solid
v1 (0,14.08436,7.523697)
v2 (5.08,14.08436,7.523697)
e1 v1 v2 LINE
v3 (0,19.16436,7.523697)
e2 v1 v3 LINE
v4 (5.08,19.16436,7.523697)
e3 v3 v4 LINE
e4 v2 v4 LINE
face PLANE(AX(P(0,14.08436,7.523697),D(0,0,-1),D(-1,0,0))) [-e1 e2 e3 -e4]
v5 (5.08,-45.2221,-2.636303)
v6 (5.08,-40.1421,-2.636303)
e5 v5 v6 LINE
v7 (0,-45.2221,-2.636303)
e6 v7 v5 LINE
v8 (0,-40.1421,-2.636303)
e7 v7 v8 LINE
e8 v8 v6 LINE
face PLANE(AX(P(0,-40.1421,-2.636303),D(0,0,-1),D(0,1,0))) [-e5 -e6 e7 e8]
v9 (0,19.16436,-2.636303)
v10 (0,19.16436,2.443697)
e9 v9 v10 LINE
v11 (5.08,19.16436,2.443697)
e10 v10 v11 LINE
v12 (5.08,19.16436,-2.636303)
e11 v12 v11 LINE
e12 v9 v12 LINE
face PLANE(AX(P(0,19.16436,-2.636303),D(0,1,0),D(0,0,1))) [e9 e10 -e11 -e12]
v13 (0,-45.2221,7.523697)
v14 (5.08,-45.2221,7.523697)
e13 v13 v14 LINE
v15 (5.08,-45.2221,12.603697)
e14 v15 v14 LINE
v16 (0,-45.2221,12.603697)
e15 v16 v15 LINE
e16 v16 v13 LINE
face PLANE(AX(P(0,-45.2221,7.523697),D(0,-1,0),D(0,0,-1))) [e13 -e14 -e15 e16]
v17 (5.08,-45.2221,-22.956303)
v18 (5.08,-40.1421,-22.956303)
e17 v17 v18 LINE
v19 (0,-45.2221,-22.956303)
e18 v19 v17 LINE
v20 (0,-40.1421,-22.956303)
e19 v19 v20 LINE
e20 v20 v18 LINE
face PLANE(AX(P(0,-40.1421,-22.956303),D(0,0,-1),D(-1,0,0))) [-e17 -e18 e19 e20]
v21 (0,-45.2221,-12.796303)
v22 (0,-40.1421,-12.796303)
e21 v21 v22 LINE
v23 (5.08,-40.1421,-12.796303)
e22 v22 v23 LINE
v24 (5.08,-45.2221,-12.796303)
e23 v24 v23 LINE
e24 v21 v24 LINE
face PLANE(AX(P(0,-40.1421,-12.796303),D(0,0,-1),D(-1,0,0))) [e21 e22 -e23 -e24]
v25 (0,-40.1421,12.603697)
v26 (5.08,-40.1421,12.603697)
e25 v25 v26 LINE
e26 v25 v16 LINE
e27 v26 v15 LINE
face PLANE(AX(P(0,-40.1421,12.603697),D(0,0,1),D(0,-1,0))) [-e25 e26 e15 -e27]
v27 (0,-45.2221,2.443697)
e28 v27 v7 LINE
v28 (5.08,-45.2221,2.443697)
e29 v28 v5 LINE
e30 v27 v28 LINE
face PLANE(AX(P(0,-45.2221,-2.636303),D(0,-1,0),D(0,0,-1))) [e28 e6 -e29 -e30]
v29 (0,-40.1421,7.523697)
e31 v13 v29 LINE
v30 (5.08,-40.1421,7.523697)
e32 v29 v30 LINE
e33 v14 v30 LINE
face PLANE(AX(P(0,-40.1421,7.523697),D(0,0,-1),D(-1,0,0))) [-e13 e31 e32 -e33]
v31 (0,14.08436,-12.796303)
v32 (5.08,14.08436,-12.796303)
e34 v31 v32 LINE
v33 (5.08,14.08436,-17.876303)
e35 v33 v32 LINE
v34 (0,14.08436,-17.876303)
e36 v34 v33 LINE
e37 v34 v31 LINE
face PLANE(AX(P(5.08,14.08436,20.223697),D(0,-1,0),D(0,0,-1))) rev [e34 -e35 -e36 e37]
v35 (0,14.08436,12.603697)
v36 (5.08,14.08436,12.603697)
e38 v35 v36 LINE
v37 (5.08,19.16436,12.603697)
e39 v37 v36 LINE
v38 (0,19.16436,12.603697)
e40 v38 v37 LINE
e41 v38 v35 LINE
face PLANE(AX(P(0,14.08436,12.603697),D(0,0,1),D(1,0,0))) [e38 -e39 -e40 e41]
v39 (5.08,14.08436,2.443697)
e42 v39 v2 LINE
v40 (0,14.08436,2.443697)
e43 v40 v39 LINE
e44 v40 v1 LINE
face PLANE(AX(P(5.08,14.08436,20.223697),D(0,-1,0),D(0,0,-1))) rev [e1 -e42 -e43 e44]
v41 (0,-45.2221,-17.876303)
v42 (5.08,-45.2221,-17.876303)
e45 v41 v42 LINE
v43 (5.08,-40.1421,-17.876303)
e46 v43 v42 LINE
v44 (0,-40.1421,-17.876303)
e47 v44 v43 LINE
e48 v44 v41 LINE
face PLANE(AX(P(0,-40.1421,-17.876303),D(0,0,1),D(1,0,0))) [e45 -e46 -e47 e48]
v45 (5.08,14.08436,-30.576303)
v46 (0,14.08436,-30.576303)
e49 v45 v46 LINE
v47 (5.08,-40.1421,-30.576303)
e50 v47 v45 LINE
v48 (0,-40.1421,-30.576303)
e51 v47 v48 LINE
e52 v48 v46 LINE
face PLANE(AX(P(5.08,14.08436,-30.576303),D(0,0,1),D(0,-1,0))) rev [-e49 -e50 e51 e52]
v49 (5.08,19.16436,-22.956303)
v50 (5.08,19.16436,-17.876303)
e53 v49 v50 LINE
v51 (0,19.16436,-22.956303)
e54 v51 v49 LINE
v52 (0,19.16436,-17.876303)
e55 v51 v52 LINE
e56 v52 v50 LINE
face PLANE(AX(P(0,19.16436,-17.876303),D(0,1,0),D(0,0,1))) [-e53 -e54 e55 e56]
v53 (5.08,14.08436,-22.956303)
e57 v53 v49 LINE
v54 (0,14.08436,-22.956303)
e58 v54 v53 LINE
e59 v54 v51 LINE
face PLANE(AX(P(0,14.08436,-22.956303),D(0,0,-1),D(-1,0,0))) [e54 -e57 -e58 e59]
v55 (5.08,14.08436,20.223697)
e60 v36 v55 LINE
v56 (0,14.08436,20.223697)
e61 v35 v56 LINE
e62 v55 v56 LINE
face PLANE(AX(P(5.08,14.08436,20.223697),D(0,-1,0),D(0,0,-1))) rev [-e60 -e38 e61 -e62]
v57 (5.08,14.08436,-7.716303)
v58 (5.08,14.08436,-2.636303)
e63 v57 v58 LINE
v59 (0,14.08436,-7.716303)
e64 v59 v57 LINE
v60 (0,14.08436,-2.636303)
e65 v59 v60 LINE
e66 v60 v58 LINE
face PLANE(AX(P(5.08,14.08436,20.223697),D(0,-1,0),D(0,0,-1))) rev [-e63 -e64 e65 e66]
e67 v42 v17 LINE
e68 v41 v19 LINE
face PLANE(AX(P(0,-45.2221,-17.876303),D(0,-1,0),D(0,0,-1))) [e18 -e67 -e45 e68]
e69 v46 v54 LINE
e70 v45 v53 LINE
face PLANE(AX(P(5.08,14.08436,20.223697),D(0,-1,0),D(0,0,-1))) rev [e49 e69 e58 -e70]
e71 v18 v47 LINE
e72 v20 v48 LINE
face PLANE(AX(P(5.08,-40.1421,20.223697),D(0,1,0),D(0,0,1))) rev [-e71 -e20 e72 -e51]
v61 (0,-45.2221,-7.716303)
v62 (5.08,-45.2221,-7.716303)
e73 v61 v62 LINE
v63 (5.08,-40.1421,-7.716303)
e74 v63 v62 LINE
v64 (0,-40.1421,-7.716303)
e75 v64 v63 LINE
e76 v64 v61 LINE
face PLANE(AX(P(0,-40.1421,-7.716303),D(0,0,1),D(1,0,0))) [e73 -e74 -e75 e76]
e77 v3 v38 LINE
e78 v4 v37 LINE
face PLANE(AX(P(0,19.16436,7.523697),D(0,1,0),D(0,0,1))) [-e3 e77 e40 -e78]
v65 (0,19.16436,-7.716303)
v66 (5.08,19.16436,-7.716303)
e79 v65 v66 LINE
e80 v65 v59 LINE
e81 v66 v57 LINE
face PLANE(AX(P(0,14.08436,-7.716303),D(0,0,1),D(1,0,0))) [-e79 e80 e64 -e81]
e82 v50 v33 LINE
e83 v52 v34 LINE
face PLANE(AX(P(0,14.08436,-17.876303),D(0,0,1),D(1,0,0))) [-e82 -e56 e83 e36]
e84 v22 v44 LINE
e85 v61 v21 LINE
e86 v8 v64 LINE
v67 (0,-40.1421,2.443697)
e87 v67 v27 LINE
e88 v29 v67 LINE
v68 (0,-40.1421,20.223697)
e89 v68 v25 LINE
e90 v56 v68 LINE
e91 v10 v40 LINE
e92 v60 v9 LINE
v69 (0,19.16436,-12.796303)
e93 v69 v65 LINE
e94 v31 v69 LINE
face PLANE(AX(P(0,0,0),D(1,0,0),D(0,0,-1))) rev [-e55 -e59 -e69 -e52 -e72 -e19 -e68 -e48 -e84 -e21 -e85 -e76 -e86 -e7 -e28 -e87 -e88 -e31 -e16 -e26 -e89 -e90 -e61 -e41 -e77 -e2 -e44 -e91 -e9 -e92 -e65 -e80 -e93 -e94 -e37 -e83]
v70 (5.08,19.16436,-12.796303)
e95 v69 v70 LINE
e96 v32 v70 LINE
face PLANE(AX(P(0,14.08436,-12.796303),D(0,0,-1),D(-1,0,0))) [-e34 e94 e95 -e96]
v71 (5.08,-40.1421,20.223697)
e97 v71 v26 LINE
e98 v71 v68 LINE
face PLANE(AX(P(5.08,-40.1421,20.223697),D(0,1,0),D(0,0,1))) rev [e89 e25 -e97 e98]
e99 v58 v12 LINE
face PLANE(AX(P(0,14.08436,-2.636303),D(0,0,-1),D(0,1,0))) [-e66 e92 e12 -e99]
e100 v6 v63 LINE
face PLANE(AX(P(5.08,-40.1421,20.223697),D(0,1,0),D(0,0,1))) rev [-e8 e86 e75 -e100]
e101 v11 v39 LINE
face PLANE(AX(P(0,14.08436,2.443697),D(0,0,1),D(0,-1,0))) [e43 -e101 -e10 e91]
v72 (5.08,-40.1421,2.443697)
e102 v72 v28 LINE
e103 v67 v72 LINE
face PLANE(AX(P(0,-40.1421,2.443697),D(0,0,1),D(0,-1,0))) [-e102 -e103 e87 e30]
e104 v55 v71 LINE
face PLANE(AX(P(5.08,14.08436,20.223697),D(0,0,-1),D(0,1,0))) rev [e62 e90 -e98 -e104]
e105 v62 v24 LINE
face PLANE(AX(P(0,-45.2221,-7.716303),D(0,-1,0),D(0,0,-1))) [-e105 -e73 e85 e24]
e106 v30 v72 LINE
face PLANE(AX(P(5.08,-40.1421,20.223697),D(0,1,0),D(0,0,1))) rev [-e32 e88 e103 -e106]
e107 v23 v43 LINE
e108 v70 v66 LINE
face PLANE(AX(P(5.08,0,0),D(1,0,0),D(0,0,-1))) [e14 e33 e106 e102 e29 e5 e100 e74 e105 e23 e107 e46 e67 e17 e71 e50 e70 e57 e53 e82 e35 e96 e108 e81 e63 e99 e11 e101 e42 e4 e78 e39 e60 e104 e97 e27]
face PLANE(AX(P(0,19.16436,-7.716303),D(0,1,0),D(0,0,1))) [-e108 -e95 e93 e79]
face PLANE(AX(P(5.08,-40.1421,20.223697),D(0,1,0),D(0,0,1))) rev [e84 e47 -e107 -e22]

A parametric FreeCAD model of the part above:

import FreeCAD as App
import Part
import Sketcher
Q = App.Units.Quantity


def add_polygon(sketch, points):
    """Adds a closed chain of lines whose ends are joined by coincident constraints."""
    first, n = sketch.GeometryCount, len(points)
    for a, b in zip(points, points[1:] + points[:1]):
        sketch.addGeometry(Part.LineSegment(App.Vector(*a, 0), App.Vector(*b, 0)), False)
    for i in range(n):
        sketch.addConstraint(Sketcher.Constraint("Coincident", first + i, 2, first + (i + 1) % n, 1))

doc = App.newDocument("Part")
body = doc.addObject("PartDesign::Body", "Body")

sketch1 = body.newObject("Sketcher::SketchObject", "Sketch")
sketch1.AttachmentSupport = (doc.getObject("YZ_Plane"), [""])
sketch1.MapMode = "FlatFace"
add_polygon(sketch1, [(14.08436, 20.223697), (-40.1421, 20.223697), (-40.1421, -30.576303), (14.08436, -30.576303)])
sketch1.addConstraint(Sketcher.Constraint("Horizontal", 0))
sketch1.addConstraint(Sketcher.Constraint("Vertical", 1))
sketch1.addConstraint(Sketcher.Constraint("Horizontal", 2))
sketch1.addConstraint(Sketcher.Constraint("Vertical", 3))
sketch1.addConstraint(Sketcher.Constraint("DistanceY", 1, 2, 1, 1, Q("2 in")))
sketch1.addConstraint(Sketcher.Constraint("DistanceX", 0, 2, 0, 1, Q("2.1349 in")))
sketch1.addConstraint(Sketcher.Constraint("DistanceX", 0, 2, -1, 1, 40.1421))
sketch1.addConstraint(Sketcher.Constraint("DistanceY", -1, 1, 0, 2, 20.223697))
pad1 = body.newObject("PartDesign::Pad", "Pad")
pad1.Profile = sketch1
pad1.Length = Q("0.2 in")

sketch2 = body.newObject("Sketcher::SketchObject", "Sketch001")
sketch2.AttachmentSupport = (doc.getObject("YZ_Plane"), [""])
sketch2.MapMode = "FlatFace"
sketch2.AttachmentOffset = App.Placement(App.Vector(0, 0, 0.2 * 25.4), App.Rotation())
add_polygon(sketch2, [(19.16436, 12.603697), (14.08436, 12.603697), (14.08436, 7.523697), (19.16436, 7.523697)])
add_polygon(sketch2, [(19.16436, -7.716303), (14.08436, -7.716303), (14.08436, -12.796303), (19.16436, -12.796303)])
add_polygon(sketch2, [(19.16436, -17.876303), (14.08436, -17.876303), (14.08436, -22.956303), (19.16436, -22.956303)])
add_polygon(sketch2, [(19.16436, 2.443697), (14.08436, 2.443697), (14.08436, -2.636303), (19.16436, -2.636303)])
add_polygon(sketch2, [(-40.1421, 2.443697), (-45.2221, 2.443697), (-45.2221, -2.636303), (-40.1421, -2.636303)])
add_polygon(sketch2, [(-40.1421, 12.603697), (-45.2221, 12.603697), (-45.2221, 7.523697), (-40.1421, 7.523697)])
add_polygon(sketch2, [(-40.1421, -17.876303), (-45.2221, -17.876303), (-45.2221, -22.956303), (-40.1421, -22.956303)])
add_polygon(sketch2, [(-40.1421, -7.716303), (-45.2221, -7.716303), (-45.2221, -12.796303), (-40.1421, -12.796303)])
sketch2.addConstraint(Sketcher.Constraint("Horizontal", 0))
sketch2.addConstraint(Sketcher.Constraint("Vertical", 1))
sketch2.addConstraint(Sketcher.Constraint("Horizontal", 2))
sketch2.addConstraint(Sketcher.Constraint("Vertical", 3))
sketch2.addConstraint(Sketcher.Constraint("Horizontal", 4))
sketch2.addConstraint(Sketcher.Constraint("Vertical", 5))
sketch2.addConstraint(Sketcher.Constraint("Horizontal", 6))
sketch2.addConstraint(Sketcher.Constraint("Vertical", 7))
sketch2.addConstraint(Sketcher.Constraint("Horizontal", 8))
sketch2.addConstraint(Sketcher.Constraint("Vertical", 9))
sketch2.addConstraint(Sketcher.Constraint("Horizontal", 10))
sketch2.addConstraint(Sketcher.Constraint("Vertical", 11))
sketch2.addConstraint(Sketcher.Constraint("Horizontal", 12))
sketch2.addConstraint(Sketcher.Constraint("Vertical", 13))
sketch2.addConstraint(Sketcher.Constraint("Horizontal", 14))
sketch2.addConstraint(Sketcher.Constraint("Vertical", 15))
sketch2.addConstraint(Sketcher.Constraint("Horizontal", 16))
sketch2.addConstraint(Sketcher.Constraint("Vertical", 17))
sketch2.addConstraint(Sketcher.Constraint("Horizontal", 18))
sketch2.addConstraint(Sketcher.Constraint("Vertical", 19))
sketch2.addConstraint(Sketcher.Constraint("Horizontal", 20))
sketch2.addConstraint(Sketcher.Constraint("Vertical", 21))
sketch2.addConstraint(Sketcher.Constraint("Horizontal", 22))
sketch2.addConstraint(Sketcher.Constraint("Vertical", 23))
sketch2.addConstraint(Sketcher.Constraint("Horizontal", 24))
sketch2.addConstraint(Sketcher.Constraint("Vertical", 25))
sketch2.addConstraint(Sketcher.Constraint("Horizontal", 26))
sketch2.addConstraint(Sketcher.Constraint("Vertical", 27))
sketch2.addConstraint(Sketcher.Constraint("Horizontal", 28))
sketch2.addConstraint(Sketcher.Constraint("Vertical", 29))
sketch2.addConstraint(Sketcher.Constraint("Horizontal", 30))
sketch2.addConstraint(Sketcher.Constraint("Vertical", 31))
sketch2.addConstraint(Sketcher.Constraint("Horizontal", 15, 2, 16, 2))
sketch2.addConstraint(Sketcher.Constraint("Horizontal", 14, 2, 17, 2))
sketch2.addConstraint(Sketcher.Constraint("Horizontal", 3, 2, 20, 2))
sketch2.addConstraint(Sketcher.Constraint("Horizontal", 2, 2, 21, 2))
sketch2.addConstraint(Sketcher.Constraint("Horizontal", 11, 2, 24, 2))
sketch2.addConstraint(Sketcher.Constraint("Horizontal", 10, 2, 25, 2))
sketch2.addConstraint(Sketcher.Constraint("Horizontal", 7, 2, 28, 2))
sketch2.addConstraint(Sketcher.Constraint("Horizontal", 6, 2, 29, 2))
sketch2.addConstraint(Sketcher.Constraint("Vertical", 1, 2, 4, 2))
sketch2.addConstraint(Sketcher.Constraint("Vertical", 3, 2, 6, 2))
sketch2.addConstraint(Sketcher.Constraint("Vertical", 5, 2, 8, 2))
sketch2.addConstraint(Sketcher.Constraint("Vertical", 7, 2, 10, 2))
sketch2.addConstraint(Sketcher.Constraint("Vertical", 9, 2, 12, 2))
sketch2.addConstraint(Sketcher.Constraint("Vertical", 11, 2, 14, 2))
sketch2.addConstraint(Sketcher.Constraint("Vertical", 17, 2, 20, 2))
sketch2.addConstraint(Sketcher.Constraint("Vertical", 19, 2, 22, 2))
sketch2.addConstraint(Sketcher.Constraint("Vertical", 21, 2, 24, 2))
sketch2.addConstraint(Sketcher.Constraint("Vertical", 23, 2, 26, 2))
sketch2.addConstraint(Sketcher.Constraint("Vertical", 25, 2, 28, 2))
sketch2.addConstraint(Sketcher.Constraint("Vertical", 27, 2, 30, 2))
sketch2.addConstraint(Sketcher.Constraint("Equal", 14, 16))
sketch2.addConstraint(Sketcher.Constraint("Equal", 30, 1))
sketch2.addConstraint(Sketcher.Constraint("Equal", 3, 5))
sketch2.addConstraint(Sketcher.Constraint("Equal", 7, 9))
sketch2.addConstraint(Sketcher.Constraint("Equal", 11, 13))
sketch2.addConstraint(Sketcher.Constraint("DistanceX", 0, 2, 0, 1, Q("0.2 in")))
sketch2.addConstraint(Sketcher.Constraint("DistanceY", 5, 2, 0, 2, Q("1 in")))
sketch2.addConstraint(Sketcher.Constraint("DistanceY", 8, 2, 1, 2, Q("1 in")))
sketch2.addConstraint(Sketcher.Constraint("DistanceY", 25, 2, 16, 2, Q("1 in")))
sketch2.addConstraint(Sketcher.Constraint("DistanceX", 16, 2, 12, 2, Q("2.3349 in")))
sketch2.addConstraint(Sketcher.Constraint("DistanceX", 16, 2, -1, 1, 45.2221))
sketch2.addConstraint(Sketcher.Constraint("DistanceY", -1, 1, 0, 2, 12.603697))
pad2 = body.newObject("PartDesign::Pad", "Pad001")
pad2.Profile = sketch2
pad2.Length = Q("0.2 in")
pad2.Reversed = True

doc.recompute()
